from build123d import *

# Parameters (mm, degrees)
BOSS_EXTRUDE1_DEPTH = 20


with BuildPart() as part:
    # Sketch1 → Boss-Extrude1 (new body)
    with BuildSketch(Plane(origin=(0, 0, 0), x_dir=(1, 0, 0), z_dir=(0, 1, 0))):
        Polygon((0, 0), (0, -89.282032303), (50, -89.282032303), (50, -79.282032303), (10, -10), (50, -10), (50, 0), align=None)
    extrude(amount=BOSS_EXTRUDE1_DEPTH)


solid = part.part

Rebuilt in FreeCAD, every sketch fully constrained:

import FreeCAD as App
import Part
import Sketcher

V = App.Vector
Q = App.Units.Quantity

doc = App.newDocument("Part")
body = doc.addObject("PartDesign::Body", "Body")

# Sketch on XZ plane
sketch1 = doc.addObject("Sketcher::SketchObject", "Sketch")
body.addObject(sketch1)
sketch1.AttachmentSupport = (doc.XZ_Plane, [""])
sketch1.MapMode = "FlatFace"
sketch1.addGeometry([
    Part.LineSegment(V(0, 0, 0), V(0, 89.282032, 0)),  # 0
    Part.LineSegment(V(0, 89.282032, 0), V(50, 89.282032, 0)),  # 1
    Part.LineSegment(V(50, 89.282032, 0), V(50, 79.282032, 0)),  # 2
    Part.LineSegment(V(50, 79.282032, 0), V(10, 10, 0)),  # 3
    Part.LineSegment(V(10, 10, 0), V(50, 10, 0)),  # 4
    Part.LineSegment(V(50, 10, 0), V(50, 0, 0)),  # 5
    Part.LineSegment(V(50, 0, 0), V(0, 0, 0)),  # 6
], False)
sketch1.addConstraint([
    Sketcher.Constraint("Coincident", 0, 2, 1, 1),
    Sketcher.Constraint("Coincident", 1, 2, 2, 1),
    Sketcher.Constraint("Coincident", 2, 2, 3, 1),
    Sketcher.Constraint("Coincident", 3, 2, 4, 1),
    Sketcher.Constraint("Coincident", 4, 2, 5, 1),
    Sketcher.Constraint("Coincident", 5, 2, 6, 1),
    Sketcher.Constraint("Coincident", 6, 2, 0, 1),
    Sketcher.Constraint("Vertical", 0),
    Sketcher.Constraint("Horizontal", 1),
    Sketcher.Constraint("Vertical", 2),
    Sketcher.Constraint("Horizontal", 4),
    Sketcher.Constraint("Vertical", 5),
    Sketcher.Constraint("Horizontal", 6),
    Sketcher.Constraint("Coincident", 6, 2, -1, 1),
    Sketcher.Constraint("Vertical", 2, 2, 4, 2),
    Sketcher.Constraint("Equal", 2, 5),
    Sketcher.Constraint("DistanceX", 1, 1, 1, 2, 50.0),
    Sketcher.Constraint("DistanceX", 4, 1, 4, 2, 40.0),
    Sketcher.Constraint("DistanceY", 2, 2, 2, 1, 10.0),
    Sketcher.Constraint("Angle", 3, Q("-120 deg")),
])
pad1 = doc.addObject("PartDesign::Pad", "Pad")
body.addObject(pad1)
pad1.Profile = sketch1
pad1.Length = 20
pad1.Reversed = True

doc.recompute()
